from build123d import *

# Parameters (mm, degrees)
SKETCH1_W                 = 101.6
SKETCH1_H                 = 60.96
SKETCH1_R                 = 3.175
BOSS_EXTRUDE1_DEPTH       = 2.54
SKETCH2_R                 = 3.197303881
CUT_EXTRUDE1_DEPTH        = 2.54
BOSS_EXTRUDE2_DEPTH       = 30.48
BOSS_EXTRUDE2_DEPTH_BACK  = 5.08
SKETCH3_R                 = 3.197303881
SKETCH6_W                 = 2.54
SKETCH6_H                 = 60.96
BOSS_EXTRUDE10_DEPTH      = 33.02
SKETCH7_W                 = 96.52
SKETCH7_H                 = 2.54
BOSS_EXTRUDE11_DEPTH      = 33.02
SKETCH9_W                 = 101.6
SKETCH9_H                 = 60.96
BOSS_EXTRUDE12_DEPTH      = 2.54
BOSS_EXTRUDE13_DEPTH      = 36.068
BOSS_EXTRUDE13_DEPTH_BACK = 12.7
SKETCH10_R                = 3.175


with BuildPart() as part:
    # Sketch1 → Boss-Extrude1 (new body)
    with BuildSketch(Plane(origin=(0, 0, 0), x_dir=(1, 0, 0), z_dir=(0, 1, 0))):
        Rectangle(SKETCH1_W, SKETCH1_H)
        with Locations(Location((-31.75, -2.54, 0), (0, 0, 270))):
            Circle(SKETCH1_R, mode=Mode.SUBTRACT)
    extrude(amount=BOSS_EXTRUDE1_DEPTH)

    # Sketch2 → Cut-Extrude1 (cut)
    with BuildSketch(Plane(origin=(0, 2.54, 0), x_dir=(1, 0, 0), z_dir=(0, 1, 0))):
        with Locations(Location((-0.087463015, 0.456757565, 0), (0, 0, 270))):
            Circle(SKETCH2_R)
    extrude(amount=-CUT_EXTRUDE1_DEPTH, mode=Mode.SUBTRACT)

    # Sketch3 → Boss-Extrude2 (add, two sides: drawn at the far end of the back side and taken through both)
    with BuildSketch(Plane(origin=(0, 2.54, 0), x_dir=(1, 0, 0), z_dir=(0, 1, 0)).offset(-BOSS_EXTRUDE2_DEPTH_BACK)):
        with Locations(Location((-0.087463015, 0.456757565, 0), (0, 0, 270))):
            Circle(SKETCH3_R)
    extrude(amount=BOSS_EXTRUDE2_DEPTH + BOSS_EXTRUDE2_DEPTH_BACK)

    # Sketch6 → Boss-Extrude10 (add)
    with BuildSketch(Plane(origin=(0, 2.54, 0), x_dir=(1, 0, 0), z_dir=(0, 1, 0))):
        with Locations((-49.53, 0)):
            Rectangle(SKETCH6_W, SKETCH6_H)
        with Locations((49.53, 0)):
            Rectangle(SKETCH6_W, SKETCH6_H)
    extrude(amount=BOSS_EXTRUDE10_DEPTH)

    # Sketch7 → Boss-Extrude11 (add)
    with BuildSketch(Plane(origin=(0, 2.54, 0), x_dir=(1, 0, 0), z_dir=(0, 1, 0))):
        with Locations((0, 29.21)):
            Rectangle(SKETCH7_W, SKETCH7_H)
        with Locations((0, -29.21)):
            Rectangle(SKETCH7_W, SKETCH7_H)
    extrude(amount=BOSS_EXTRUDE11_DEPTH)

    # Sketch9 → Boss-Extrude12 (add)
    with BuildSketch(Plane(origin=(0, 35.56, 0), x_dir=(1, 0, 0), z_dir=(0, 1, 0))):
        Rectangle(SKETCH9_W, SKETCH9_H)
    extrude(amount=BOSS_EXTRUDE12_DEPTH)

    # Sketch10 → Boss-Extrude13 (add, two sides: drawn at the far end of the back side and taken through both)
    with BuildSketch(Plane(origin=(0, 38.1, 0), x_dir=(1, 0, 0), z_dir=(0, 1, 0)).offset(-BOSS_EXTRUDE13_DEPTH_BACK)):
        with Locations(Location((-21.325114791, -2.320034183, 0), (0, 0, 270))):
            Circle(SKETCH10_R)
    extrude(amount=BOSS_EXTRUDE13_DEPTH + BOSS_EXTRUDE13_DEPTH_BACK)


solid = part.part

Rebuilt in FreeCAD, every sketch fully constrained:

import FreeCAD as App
import Part
import Sketcher

V = App.Vector
Q = App.Units.Quantity

doc = App.newDocument("Part")
body = doc.addObject("PartDesign::Body", "Body")

# Sketch on XZ plane
sketch1 = body.newObject("Sketcher::SketchObject", "Sketch")
sketch1.AttachmentSupport = (doc.getObject("XZ_Plane"), [""])
sketch1.MapMode = "FlatFace"
sketch1.addGeometry([
    Part.LineSegment(V(-50.8, -30.48, 0), V(-50.8, 30.48, 0)),  # 0
    Part.LineSegment(V(-50.8, 30.48, 0), V(50.8, 30.48, 0)),  # 1
    Part.LineSegment(V(50.8, 30.48, 0), V(50.8, -30.48, 0)),  # 2
    Part.LineSegment(V(50.8, -30.48, 0), V(-50.8, -30.48, 0)),  # 3
    Part.Circle(V(-31.75, 2.54, 0), V(0, 0, 1), 3.175),  # 4
], False)
sketch1.addConstraint([
    Sketcher.Constraint("Coincident", 0, 2, 1, 1),
    Sketcher.Constraint("Coincident", 1, 2, 2, 1),
    Sketcher.Constraint("Coincident", 2, 2, 3, 1),
    Sketcher.Constraint("Coincident", 3, 2, 0, 1),
    Sketcher.Constraint("Vertical", 0),
    Sketcher.Constraint("Horizontal", 1),
    Sketcher.Constraint("Vertical", 2),
    Sketcher.Constraint("Horizontal", 3),
    Sketcher.Constraint("Symmetric", 0, 2, 2, 2, -1, 1),
    Sketcher.Constraint("Diameter", 4, Q("0.25 in")),
    Sketcher.Constraint("DistanceX", 1, 1, 1, 2, Q("4 in")),
    Sketcher.Constraint("DistanceY", 0, 1, 0, 2, Q("2.4 in")),
    Sketcher.Constraint("DistanceY", -1, 1, 4, 3, Q("0.1 in")),
    Sketcher.Constraint("DistanceX", 4, 3, -1, 1, Q("1.25 in")),
])
pad1 = body.newObject("PartDesign::Pad", "Pad")
pad1.Profile = sketch1
pad1.Length = Q("0.1 in")
pad1.Reversed = True

# Sketch on XZ plane
sketch2 = body.newObject("Sketcher::SketchObject", "Sketch001")
sketch2.AttachmentSupport = (doc.getObject("XZ_Plane"), [""])
sketch2.MapMode = "FlatFace"
sketch2.AttachmentOffset = App.Placement(V(0, 0, -0.1 * 25.4), App.Rotation())
sketch2.addGeometry(Part.Circle(V(-0.087463, -0.456758, 0), V(0, 0, 1), 3.197304), False)
sketch2.addConstraint([
    Sketcher.Constraint("Diameter", 0, Q("6.394608 mm")),
    Sketcher.Constraint("DistanceX", 0, 3, -1, 1, Q("0.087463 mm")),
    Sketcher.Constraint("DistanceY", 0, 3, -1, 1, Q("0.456758 mm")),
])
pocket1 = body.newObject("PartDesign::Pocket", "Pocket")
pocket1.Profile = sketch2
pocket1.Length = Q("0.1 in")
pocket1.Reversed = True

# Sketch on XZ plane
sketch3 = body.newObject("Sketcher::SketchObject", "Sketch002")
sketch3.AttachmentSupport = (doc.getObject("XZ_Plane"), [""])
sketch3.MapMode = "FlatFace"
sketch3.AttachmentOffset = App.Placement(V(0, 0, -0.1 * 25.4), App.Rotation())
sketch3.addGeometry(Part.Circle(V(-0.087463, -0.456758, 0), V(0, 0, 1), 3.197304), False)
sketch3.addConstraint([
    Sketcher.Constraint("Diameter", 0, Q("6.394608 mm")),
    Sketcher.Constraint("DistanceX", 0, 3, -1, 1, Q("0.087463 mm")),
    Sketcher.Constraint("DistanceY", 0, 3, -1, 1, Q("0.456758 mm")),
])
pad2 = body.newObject("PartDesign::Pad", "Pad001")
pad2.Profile = sketch3
pad2.Type = "TwoLengths"
pad2.Length = Q("1.2 in")
pad2.Length2 = Q("0.2 in")
pad2.Reversed = True

# Sketch on XZ plane
sketch4 = body.newObject("Sketcher::SketchObject", "Sketch003")
sketch4.AttachmentSupport = (doc.getObject("XZ_Plane"), [""])
sketch4.MapMode = "FlatFace"
sketch4.AttachmentOffset = App.Placement(V(0, 0, -0.1 * 25.4), App.Rotation())
sketch4.addGeometry([
    Part.LineSegment(V(-50.8, -30.48, 0), V(-50.8, 30.48, 0)),  # 0
    Part.LineSegment(V(-50.8, 30.48, 0), V(-48.26, 30.48, 0)),  # 1
    Part.LineSegment(V(-48.26, 30.48, 0), V(-48.26, -30.48, 0)),  # 2
    Part.LineSegment(V(-48.26, -30.48, 0), V(-50.8, -30.48, 0)),  # 3
    Part.LineSegment(V(48.26, -30.48, 0), V(48.26, 30.48, 0)),  # 4
    Part.LineSegment(V(48.26, 30.48, 0), V(50.8, 30.48, 0)),  # 5
    Part.LineSegment(V(50.8, 30.48, 0), V(50.8, -30.48, 0)),  # 6
    Part.LineSegment(V(50.8, -30.48, 0), V(48.26, -30.48, 0)),  # 7
], False)
sketch4.addConstraint([
    Sketcher.Constraint("Coincident", 0, 2, 1, 1),
    Sketcher.Constraint("Coincident", 1, 2, 2, 1),
    Sketcher.Constraint("Coincident", 2, 2, 3, 1),
    Sketcher.Constraint("Coincident", 3, 2, 0, 1),
    Sketcher.Constraint("Coincident", 4, 2, 5, 1),
    Sketcher.Constraint("Coincident", 5, 2, 6, 1),
    Sketcher.Constraint("Coincident", 6, 2, 7, 1),
    Sketcher.Constraint("Coincident", 7, 2, 4, 1),
    Sketcher.Constraint("Vertical", 0),
    Sketcher.Constraint("Horizontal", 1),
    Sketcher.Constraint("Vertical", 2),
    Sketcher.Constraint("Horizontal", 3),
    Sketcher.Constraint("Vertical", 4),
    Sketcher.Constraint("Horizontal", 5),
    Sketcher.Constraint("Vertical", 6),
    Sketcher.Constraint("Horizontal", 7),
    Sketcher.Constraint("Symmetric", 2, 2, 4, 2, -1, 1),
    Sketcher.Constraint("Symmetric", 0, 2, 6, 2, -1, 1),
    Sketcher.Constraint("Horizontal", 1, 2, 4, 2),
    Sketcher.Constraint("DistanceX", 1, 1, 1, 2, Q("0.1 in")),
    Sketcher.Constraint("DistanceY", 0, 1, 0, 2, Q("2.4 in")),
    Sketcher.Constraint("DistanceX", 0, 2, -1, 1, Q("2 in")),
])
pad3 = body.newObject("PartDesign::Pad", "Pad002")
pad3.Profile = sketch4
pad3.Length = Q("1.3 in")
pad3.Reversed = True

# Sketch on XZ plane
sketch5 = body.newObject("Sketcher::SketchObject", "Sketch004")
sketch5.AttachmentSupport = (doc.getObject("XZ_Plane"), [""])
sketch5.MapMode = "FlatFace"
sketch5.AttachmentOffset = App.Placement(V(0, 0, -0.1 * 25.4), App.Rotation())
sketch5.addGeometry([
    Part.LineSegment(V(-48.26, -30.48, 0), V(-48.26, -27.94, 0)),  # 0
    Part.LineSegment(V(-48.26, -27.94, 0), V(48.26, -27.94, 0)),  # 1
    Part.LineSegment(V(48.26, -27.94, 0), V(48.26, -30.48, 0)),  # 2
    Part.LineSegment(V(48.26, -30.48, 0), V(-48.26, -30.48, 0)),  # 3
    Part.LineSegment(V(-48.26, 27.94, 0), V(-48.26, 30.48, 0)),  # 4
    Part.LineSegment(V(-48.26, 30.48, 0), V(48.26, 30.48, 0)),  # 5
    Part.LineSegment(V(48.26, 30.48, 0), V(48.26, 27.94, 0)),  # 6
    Part.LineSegment(V(48.26, 27.94, 0), V(-48.26, 27.94, 0)),  # 7
], False)
sketch5.addConstraint([
    Sketcher.Constraint("Coincident", 0, 2, 1, 1),
    Sketcher.Constraint("Coincident", 1, 2, 2, 1),
    Sketcher.Constraint("Coincident", 2, 2, 3, 1),
    Sketcher.Constraint("Coincident", 3, 2, 0, 1),
    Sketcher.Constraint("Coincident", 4, 2, 5, 1),
    Sketcher.Constraint("Coincident", 5, 2, 6, 1),
    Sketcher.Constraint("Coincident", 6, 2, 7, 1),
    Sketcher.Constraint("Coincident", 7, 2, 4, 1),
    Sketcher.Constraint("Vertical", 0),
    Sketcher.Constraint("Horizontal", 1),
    Sketcher.Constraint("Vertical", 2),
    Sketcher.Constraint("Horizontal", 3),
    Sketcher.Constraint("Vertical", 4),
    Sketcher.Constraint("Horizontal", 5),
    Sketcher.Constraint("Vertical", 6),
    Sketcher.Constraint("Horizontal", 7),
    Sketcher.Constraint("Symmetric", 2, 2, 4, 2, -1, 1),
    Sketcher.Constraint("Symmetric", 0, 2, 6, 2, -1, 1),
    Sketcher.Constraint("Vertical", 3, 2, 4, 2),
    Sketcher.Constraint("DistanceX", 1, 1, 1, 2, Q("3.8 in")),
    Sketcher.Constraint("DistanceY", 0, 1, 0, 2, Q("0.1 in")),
    Sketcher.Constraint("DistanceY", 0, 2, -1, 1, Q("1.1 in")),
])
pad4 = body.newObject("PartDesign::Pad", "Pad003")
pad4.Profile = sketch5
pad4.Length = Q("1.3 in")
pad4.Reversed = True

# Sketch on XZ plane
sketch6 = body.newObject("Sketcher::SketchObject", "Sketch005")
sketch6.AttachmentSupport = (doc.getObject("XZ_Plane"), [""])
sketch6.MapMode = "FlatFace"
sketch6.AttachmentOffset = App.Placement(V(0, 0, -1.4 * 25.4), App.Rotation())
sketch6.addGeometry([
    Part.LineSegment(V(-50.8, -30.48, 0), V(-50.8, 30.48, 0)),
    Part.LineSegment(V(-50.8, 30.48, 0), V(50.8, 30.48, 0)),
    Part.LineSegment(V(50.8, 30.48, 0), V(50.8, -30.48, 0)),
    Part.LineSegment(V(50.8, -30.48, 0), V(-50.8, -30.48, 0)),
], False)
sketch6.addConstraint([
    Sketcher.Constraint("Coincident", 0, 2, 1, 1),
    Sketcher.Constraint("Coincident", 1, 2, 2, 1),
    Sketcher.Constraint("Coincident", 2, 2, 3, 1),
    Sketcher.Constraint("Coincident", 3, 2, 0, 1),
    Sketcher.Constraint("Vertical", 0),
    Sketcher.Constraint("Horizontal", 1),
    Sketcher.Constraint("Vertical", 2),
    Sketcher.Constraint("Horizontal", 3),
    Sketcher.Constraint("Symmetric", 0, 2, 2, 2, -1, 1),
    Sketcher.Constraint("DistanceX", 1, 1, 1, 2, Q("4 in")),
    Sketcher.Constraint("DistanceY", 0, 1, 0, 2, Q("2.4 in")),
])
pad5 = body.newObject("PartDesign::Pad", "Pad004")
pad5.Profile = sketch6
pad5.Length = Q("0.1 in")
pad5.Reversed = True

# Sketch on XZ plane
sketch7 = body.newObject("Sketcher::SketchObject", "Sketch006")
sketch7.AttachmentSupport = (doc.getObject("XZ_Plane"), [""])
sketch7.MapMode = "FlatFace"
sketch7.AttachmentOffset = App.Placement(V(0, 0, -1.5 * 25.4), App.Rotation())
sketch7.addGeometry(Part.Circle(V(-21.325115, 2.320034, 0), V(0, 0, 1), 3.175), False)
sketch7.addConstraint([
    Sketcher.Constraint("Diameter", 0, Q("0.25 in")),
    Sketcher.Constraint("DistanceX", 0, 3, -1, 1, Q("21.325115 mm")),
    Sketcher.Constraint("DistanceY", -1, 1, 0, 3, Q("2.320034 mm")),
])
pad6 = body.newObject("PartDesign::Pad", "Pad005")
pad6.Profile = sketch7
pad6.Type = "TwoLengths"
pad6.Length = Q("1.42 in")
pad6.Length2 = Q("0.5 in")
pad6.Reversed = True

doc.recompute()
